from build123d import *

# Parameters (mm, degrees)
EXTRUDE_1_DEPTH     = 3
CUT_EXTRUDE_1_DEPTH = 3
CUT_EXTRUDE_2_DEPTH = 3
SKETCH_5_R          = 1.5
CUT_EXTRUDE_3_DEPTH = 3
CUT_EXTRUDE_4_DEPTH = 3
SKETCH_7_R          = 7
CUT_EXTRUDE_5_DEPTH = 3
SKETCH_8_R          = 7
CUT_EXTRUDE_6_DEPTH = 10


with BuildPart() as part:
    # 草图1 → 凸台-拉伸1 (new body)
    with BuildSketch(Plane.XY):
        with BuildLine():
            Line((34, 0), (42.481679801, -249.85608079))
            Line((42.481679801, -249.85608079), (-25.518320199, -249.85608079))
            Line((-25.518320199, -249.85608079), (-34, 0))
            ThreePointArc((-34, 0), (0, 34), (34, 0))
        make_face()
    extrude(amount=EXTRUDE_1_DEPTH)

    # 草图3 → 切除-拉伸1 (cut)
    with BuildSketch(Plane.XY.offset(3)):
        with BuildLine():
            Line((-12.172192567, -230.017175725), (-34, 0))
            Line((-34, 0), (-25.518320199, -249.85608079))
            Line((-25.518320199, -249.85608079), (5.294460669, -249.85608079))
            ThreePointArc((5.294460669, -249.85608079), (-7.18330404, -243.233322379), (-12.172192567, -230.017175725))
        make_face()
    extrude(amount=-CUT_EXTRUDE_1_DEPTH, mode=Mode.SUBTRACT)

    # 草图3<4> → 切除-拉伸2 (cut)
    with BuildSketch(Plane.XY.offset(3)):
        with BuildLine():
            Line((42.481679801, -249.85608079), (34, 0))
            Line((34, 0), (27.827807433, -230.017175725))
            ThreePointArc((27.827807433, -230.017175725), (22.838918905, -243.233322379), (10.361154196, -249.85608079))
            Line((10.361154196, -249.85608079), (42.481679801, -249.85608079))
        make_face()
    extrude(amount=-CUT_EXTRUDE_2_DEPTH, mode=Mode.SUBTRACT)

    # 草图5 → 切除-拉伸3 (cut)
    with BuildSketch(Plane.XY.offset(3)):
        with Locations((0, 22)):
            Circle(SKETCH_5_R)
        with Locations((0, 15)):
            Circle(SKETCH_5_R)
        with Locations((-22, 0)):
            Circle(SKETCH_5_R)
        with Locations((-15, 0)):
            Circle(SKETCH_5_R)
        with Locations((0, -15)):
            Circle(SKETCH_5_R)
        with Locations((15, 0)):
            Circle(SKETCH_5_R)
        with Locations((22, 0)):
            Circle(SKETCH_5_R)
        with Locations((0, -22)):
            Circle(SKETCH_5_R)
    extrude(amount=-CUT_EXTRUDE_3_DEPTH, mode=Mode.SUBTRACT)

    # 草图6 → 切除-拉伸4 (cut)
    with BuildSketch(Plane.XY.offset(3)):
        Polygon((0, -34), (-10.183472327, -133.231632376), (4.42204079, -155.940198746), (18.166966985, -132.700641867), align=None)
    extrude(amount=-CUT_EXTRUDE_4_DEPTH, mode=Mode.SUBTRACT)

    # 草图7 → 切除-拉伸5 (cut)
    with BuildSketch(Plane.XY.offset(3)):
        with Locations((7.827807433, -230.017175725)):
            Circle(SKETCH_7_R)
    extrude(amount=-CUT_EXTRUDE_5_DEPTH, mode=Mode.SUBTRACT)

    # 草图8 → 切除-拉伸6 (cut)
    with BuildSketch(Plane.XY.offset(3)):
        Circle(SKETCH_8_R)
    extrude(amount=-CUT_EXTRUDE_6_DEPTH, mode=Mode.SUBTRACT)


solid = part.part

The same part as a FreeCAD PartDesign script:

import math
import FreeCAD as App
import Part
import Sketcher
Q = App.Units.Quantity

doc = App.newDocument("Part")
body = doc.addObject("PartDesign::Body", "Body")

# Sketch on XY plane
sketch1 = body.newObject("Sketcher::SketchObject", "Sketch")
sketch1.AttachmentSupport = (doc.getObject("XY_Plane"), [""])
sketch1.MapMode = "FlatFace"
sketch1.addGeometry([
    Part.LineSegment(App.Vector(42.48168, -249.856081, 0), App.Vector(34, 0, 0)),
    Part.ArcOfCircle(Part.Circle(App.Vector(0, 0, 0), App.Vector(0, 0, 1), 34), math.radians(0), math.radians(180)),
    Part.LineSegment(App.Vector(-34, 0, 0), App.Vector(-25.51832, -249.856081, 0)),
    Part.LineSegment(App.Vector(-25.51832, -249.856081, 0), App.Vector(42.48168, -249.856081, 0)),
], False)
sketch1.addConstraint([
    Sketcher.Constraint("Coincident", 0, 2, 1, 1),
    Sketcher.Constraint("Coincident", 1, 2, 2, 1),
    Sketcher.Constraint("Coincident", 2, 2, 3, 1),
    Sketcher.Constraint("Coincident", 3, 2, 0, 1),
    Sketcher.Constraint("Horizontal", 3),
    Sketcher.Constraint("Coincident", 1, 3, -1, 1),
    Sketcher.Constraint("PointOnObject", 0, 2, -1),
    Sketcher.Constraint("PointOnObject", 1, 2, -1),
    Sketcher.Constraint("Parallel", 0, 2),
    Sketcher.Constraint("Radius", 1, Q("34 mm")),
    Sketcher.Constraint("Distance", 0, Q("250 mm")),
    Sketcher.Constraint("DistanceX", 2, 2, -1, 1, Q("25.51832 mm")),
])
pad1 = body.newObject("PartDesign::Pad", "Pad")
pad1.Profile = sketch1
pad1.Length = 3

# Sketch on XY plane
sketch2 = body.newObject("Sketcher::SketchObject", "Sketch001")
sketch2.AttachmentSupport = (doc.getObject("XY_Plane"), [""])
sketch2.MapMode = "FlatFace"
sketch2.AttachmentOffset = App.Placement(App.Vector(0, 0, 3), App.Rotation())
sketch2.addGeometry([
    Part.LineSegment(App.Vector(-12.172193, -230.017176, 0), App.Vector(-34, 0, 0)),
    Part.LineSegment(App.Vector(-34, 0, 0), App.Vector(-25.51832, -249.856081, 0)),
    Part.LineSegment(App.Vector(-25.51832, -249.856081, 0), App.Vector(5.294461, -249.856081, 0)),
    Part.ArcOfCircle(Part.Circle(App.Vector(7.827807, -230.017176, 0), App.Vector(0, 0, 1), 20), math.radians(180), math.radians(262.722947)),
], False)
sketch2.addConstraint([
    Sketcher.Constraint("Coincident", 0, 2, 1, 1),
    Sketcher.Constraint("Coincident", 1, 2, 2, 1),
    Sketcher.Constraint("Coincident", 2, 2, 3, 2),
    Sketcher.Constraint("Coincident", 3, 1, 0, 1),
    Sketcher.Constraint("Horizontal", 2),
    Sketcher.Constraint("PointOnObject", 0, 2, -1),
    Sketcher.Constraint("Radius", 3, Q("20 mm")),
    Sketcher.Constraint("Distance", 1, Q("250 mm")),
    Sketcher.Constraint("DistanceX", 0, 2, -1, 1, Q("34 mm")),
    Sketcher.Constraint("DistanceX", 2, 1, 2, 2, Q("30.812781 mm")),
    Sketcher.Constraint("DistanceX", 1, 2, -1, 1, Q("25.51832 mm")),
    Sketcher.Constraint("Distance", 0, Q("231.050545 mm")),
    Sketcher.Constraint("DistanceX", -1, 1, 3, 3, Q("7.827807 mm")),
])
pocket1 = body.newObject("PartDesign::Pocket", "Pocket")
pocket1.Profile = sketch2
pocket1.Length = 3

# Sketch on XY plane
sketch3 = body.newObject("Sketcher::SketchObject", "Sketch002")
sketch3.AttachmentSupport = (doc.getObject("XY_Plane"), [""])
sketch3.MapMode = "FlatFace"
sketch3.AttachmentOffset = App.Placement(App.Vector(0, 0, 3), App.Rotation())
sketch3.addGeometry([
    Part.LineSegment(App.Vector(42.48168, -249.856081, 0), App.Vector(34, 0, 0)),
    Part.LineSegment(App.Vector(34, 0, 0), App.Vector(27.827807, -230.017176, 0)),
    Part.ArcOfCircle(Part.Circle(App.Vector(7.827807, -230.017176, 0), App.Vector(0, 0, 1), 20), math.radians(-82.722947), math.radians(0)),
    Part.LineSegment(App.Vector(10.361154, -249.856081, 0), App.Vector(42.48168, -249.856081, 0)),
], False)
sketch3.addConstraint([
    Sketcher.Constraint("Coincident", 0, 2, 1, 1),
    Sketcher.Constraint("Coincident", 1, 2, 2, 2),
    Sketcher.Constraint("Coincident", 2, 1, 3, 1),
    Sketcher.Constraint("Coincident", 3, 2, 0, 1),
    Sketcher.Constraint("Horizontal", 3),
    Sketcher.Constraint("PointOnObject", 0, 2, -1),
    Sketcher.Constraint("Horizontal", 2, 3, 1, 2),
    Sketcher.Constraint("Radius", 2, Q("20 mm")),
    Sketcher.Constraint("Distance", 0, Q("250 mm")),
    Sketcher.Constraint("DistanceX", -1, 1, 0, 2, Q("34 mm")),
    Sketcher.Constraint("Distance", 1, Q("230.099972 mm")),
    Sketcher.Constraint("DistanceX", 3, 1, 3, 2, Q("32.120526 mm")),
    Sketcher.Constraint("DistanceY", 2, 1, -1, 1, Q("249.856081 mm")),
])
pocket2 = body.newObject("PartDesign::Pocket", "Pocket001")
pocket2.Profile = sketch3
pocket2.Length = 3

# Sketch on XY plane
sketch4 = body.newObject("Sketcher::SketchObject", "Sketch003")
sketch4.AttachmentSupport = (doc.getObject("XY_Plane"), [""])
sketch4.MapMode = "FlatFace"
sketch4.AttachmentOffset = App.Placement(App.Vector(0, 0, 3), App.Rotation())
sketch4.addGeometry([
    Part.Circle(App.Vector(0, 22, 0), App.Vector(0, 0, 1), 1.5),  # 0
    Part.Circle(App.Vector(0, 15, 0), App.Vector(0, 0, 1), 1.5),  # 1
    Part.Circle(App.Vector(-22, 0, 0), App.Vector(0, 0, 1), 1.5),  # 2
    Part.Circle(App.Vector(-15, 0, 0), App.Vector(0, 0, 1), 1.5),  # 3
    Part.Circle(App.Vector(0, -15, 0), App.Vector(0, 0, 1), 1.5),  # 4
    Part.Circle(App.Vector(15, 0, 0), App.Vector(0, 0, 1), 1.5),  # 5
    Part.Circle(App.Vector(22, 0, 0), App.Vector(0, 0, 1), 1.5),  # 6
    Part.Circle(App.Vector(0, -22, 0), App.Vector(0, 0, 1), 1.5),  # 7
], False)
sketch4.addConstraint([
    Sketcher.Constraint("Equal", 0, 1),
    Sketcher.Constraint("Equal", 1, 2),
    Sketcher.Constraint("Equal", 2, 3),
    Sketcher.Constraint("Equal", 3, 4),
    Sketcher.Constraint("Equal", 4, 5),
    Sketcher.Constraint("Equal", 5, 6),
    Sketcher.Constraint("Equal", 6, 7),
    Sketcher.Constraint("Symmetric", 1, 3, 4, 3, -1, 1),
    Sketcher.Constraint("Symmetric", 3, 3, 5, 3, -1, 1),
    Sketcher.Constraint("Symmetric", 2, 3, 6, 3, -1, 1),
    Sketcher.Constraint("Symmetric", 0, 3, 7, 3, -1, 1),
    Sketcher.Constraint("PointOnObject", 0, 3, -2),
    Sketcher.Constraint("PointOnObject", 1, 3, -2),
    Sketcher.Constraint("PointOnObject", 2, 3, -1),
    Sketcher.Constraint("PointOnObject", 3, 3, -1),
    Sketcher.Constraint("Diameter", 0, Q("3 mm")),
    Sketcher.Constraint("DistanceY", -1, 1, 0, 3, Q("22 mm")),
    Sketcher.Constraint("DistanceY", -1, 1, 1, 3, Q("15 mm")),
    Sketcher.Constraint("DistanceX", 2, 3, -1, 1, Q("22 mm")),
    Sketcher.Constraint("DistanceX", 3, 3, -1, 1, Q("15 mm")),
])
pocket3 = body.newObject("PartDesign::Pocket", "Pocket002")
pocket3.Profile = sketch4
pocket3.Length = 3

# Sketch on XY plane
sketch5 = body.newObject("Sketcher::SketchObject", "Sketch004")
sketch5.AttachmentSupport = (doc.getObject("XY_Plane"), [""])
sketch5.MapMode = "FlatFace"
sketch5.AttachmentOffset = App.Placement(App.Vector(0, 0, 3), App.Rotation())
sketch5.addGeometry([
    Part.LineSegment(App.Vector(0, -34, 0), App.Vector(-10.183472, -133.231632, 0)),
    Part.LineSegment(App.Vector(-10.183472, -133.231632, 0), App.Vector(4.422041, -155.940199, 0)),
    Part.LineSegment(App.Vector(4.422041, -155.940199, 0), App.Vector(18.166967, -132.700642, 0)),
    Part.LineSegment(App.Vector(18.166967, -132.700642, 0), App.Vector(0, -34, 0)),
], False)
sketch5.addConstraint([
    Sketcher.Constraint("Coincident", 0, 2, 1, 1),
    Sketcher.Constraint("Coincident", 1, 2, 2, 1),
    Sketcher.Constraint("Coincident", 2, 2, 3, 1),
    Sketcher.Constraint("Coincident", 3, 2, 0, 1),
    Sketcher.Constraint("PointOnObject", 3, 2, -2),
    Sketcher.Constraint("Equal", 1, 2),
    Sketcher.Constraint("Distance", 1, Q("27 mm")),
    Sketcher.Constraint("DistanceY", 3, 2, -1, 1, Q("34 mm")),
    Sketcher.Constraint("DistanceY", 1, 2, -1, 1, Q("155.940199 mm")),
    Sketcher.Constraint("DistanceX", -1, 1, 1, 2, Q("4.422041 mm")),
    Sketcher.Constraint("DistanceY", 2, 2, -1, 1, Q("132.700642 mm")),
    Sketcher.Constraint("DistanceX", 0, 2, 2, 2, Q("28.350439 mm")),
])
pocket4 = body.newObject("PartDesign::Pocket", "Pocket003")
pocket4.Profile = sketch5
pocket4.Length = 3

# Sketch on XY plane
sketch6 = body.newObject("Sketcher::SketchObject", "Sketch005")
sketch6.AttachmentSupport = (doc.getObject("XY_Plane"), [""])
sketch6.MapMode = "FlatFace"
sketch6.AttachmentOffset = App.Placement(App.Vector(0, 0, 3), App.Rotation())
sketch6.addGeometry(Part.Circle(App.Vector(7.827807, -230.017176, 0), App.Vector(0, 0, 1), 7), False)
sketch6.addConstraint([
    Sketcher.Constraint("Diameter", 0, Q("14 mm")),
    Sketcher.Constraint("DistanceX", -1, 1, 0, 3, Q("7.827807 mm")),
    Sketcher.Constraint("DistanceY", 0, 3, -1, 1, Q("230.017176 mm")),
])
pocket5 = body.newObject("PartDesign::Pocket", "Pocket004")
pocket5.Profile = sketch6
pocket5.Length = 3

# Sketch on XY plane
sketch7 = body.newObject("Sketcher::SketchObject", "Sketch006")
sketch7.AttachmentSupport = (doc.getObject("XY_Plane"), [""])
sketch7.MapMode = "FlatFace"
sketch7.AttachmentOffset = App.Placement(App.Vector(0, 0, 3), App.Rotation())
sketch7.addGeometry(Part.Circle(App.Vector(0, 0, 0), App.Vector(0, 0, 1), 7), False)
sketch7.addConstraint([
    Sketcher.Constraint("Coincident", 0, 3, -1, 1),
    Sketcher.Constraint("Diameter", 0, Q("14 mm")),
])
pocket6 = body.newObject("PartDesign::Pocket", "Pocket005")
pocket6.Profile = sketch7
pocket6.Length = 10

doc.recompute()
